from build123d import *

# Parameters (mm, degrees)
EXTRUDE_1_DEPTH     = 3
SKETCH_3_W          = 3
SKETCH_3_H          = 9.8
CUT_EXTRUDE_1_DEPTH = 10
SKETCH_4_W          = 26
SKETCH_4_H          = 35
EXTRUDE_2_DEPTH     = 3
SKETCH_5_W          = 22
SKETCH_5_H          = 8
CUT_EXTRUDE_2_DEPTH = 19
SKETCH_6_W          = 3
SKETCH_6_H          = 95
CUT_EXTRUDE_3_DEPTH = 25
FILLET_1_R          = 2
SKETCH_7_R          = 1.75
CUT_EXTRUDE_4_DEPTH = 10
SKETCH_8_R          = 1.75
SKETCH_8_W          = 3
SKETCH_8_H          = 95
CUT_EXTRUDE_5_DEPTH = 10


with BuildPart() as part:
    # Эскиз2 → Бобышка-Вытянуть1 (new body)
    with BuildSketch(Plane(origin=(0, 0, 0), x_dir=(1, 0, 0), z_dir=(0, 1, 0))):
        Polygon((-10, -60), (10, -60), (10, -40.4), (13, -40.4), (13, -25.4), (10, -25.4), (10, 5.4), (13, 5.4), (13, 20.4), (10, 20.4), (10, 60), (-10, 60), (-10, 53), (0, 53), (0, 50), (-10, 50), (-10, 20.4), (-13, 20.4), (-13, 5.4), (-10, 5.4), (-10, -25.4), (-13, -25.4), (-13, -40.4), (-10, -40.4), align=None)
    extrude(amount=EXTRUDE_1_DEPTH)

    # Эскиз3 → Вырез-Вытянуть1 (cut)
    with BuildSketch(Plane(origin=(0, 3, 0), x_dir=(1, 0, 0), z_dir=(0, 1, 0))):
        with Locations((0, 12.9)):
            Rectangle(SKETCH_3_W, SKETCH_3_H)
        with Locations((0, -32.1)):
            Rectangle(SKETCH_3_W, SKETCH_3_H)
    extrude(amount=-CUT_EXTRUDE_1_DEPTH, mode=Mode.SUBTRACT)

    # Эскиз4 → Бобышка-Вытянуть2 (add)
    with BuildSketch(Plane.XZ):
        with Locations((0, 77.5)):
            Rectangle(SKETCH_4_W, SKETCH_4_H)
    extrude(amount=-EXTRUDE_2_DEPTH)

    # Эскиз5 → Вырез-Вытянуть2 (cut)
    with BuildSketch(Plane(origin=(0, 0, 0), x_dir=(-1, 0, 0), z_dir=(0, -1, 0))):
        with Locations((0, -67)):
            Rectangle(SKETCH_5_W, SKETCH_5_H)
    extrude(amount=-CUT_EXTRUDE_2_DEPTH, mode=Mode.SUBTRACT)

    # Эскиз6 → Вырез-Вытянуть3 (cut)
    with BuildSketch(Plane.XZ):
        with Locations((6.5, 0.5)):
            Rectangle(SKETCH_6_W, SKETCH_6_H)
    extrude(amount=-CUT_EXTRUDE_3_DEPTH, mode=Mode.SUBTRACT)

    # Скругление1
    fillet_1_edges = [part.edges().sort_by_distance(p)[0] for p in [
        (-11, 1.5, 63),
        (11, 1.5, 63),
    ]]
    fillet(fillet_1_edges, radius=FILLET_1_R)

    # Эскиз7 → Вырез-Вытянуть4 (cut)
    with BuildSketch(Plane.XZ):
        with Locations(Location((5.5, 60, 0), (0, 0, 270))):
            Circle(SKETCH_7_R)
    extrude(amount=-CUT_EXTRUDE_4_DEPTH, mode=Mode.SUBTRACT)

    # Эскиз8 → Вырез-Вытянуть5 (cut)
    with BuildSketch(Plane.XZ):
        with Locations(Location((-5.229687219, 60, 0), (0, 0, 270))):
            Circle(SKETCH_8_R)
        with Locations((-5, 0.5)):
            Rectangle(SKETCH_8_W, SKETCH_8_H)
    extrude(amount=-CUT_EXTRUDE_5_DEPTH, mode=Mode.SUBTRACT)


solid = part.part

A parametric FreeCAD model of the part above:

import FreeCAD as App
import Part
import Sketcher
Q = App.Units.Quantity


def edges_at(feature, points):
    """Names of the edges that pass closest to the given points."""
    edges = feature.Shape.Edges
    near = lambda p: min(range(len(edges)), key=lambda i: edges[i].distToShape(Part.Vertex(*p))[0])
    return sorted({f"Edge{near(p) + 1}" for p in points})

doc = App.newDocument("Part")
body = doc.addObject("PartDesign::Body", "Body")

# Sketch on XZ plane
sketch1 = doc.addObject("Sketcher::SketchObject", "Sketch")
body.addObject(sketch1)
sketch1.AttachmentSupport = (doc.XZ_Plane, [""])
sketch1.MapMode = "FlatFace"
sketch1.addGeometry([
    Part.LineSegment(App.Vector(-10, 60, 0), App.Vector(10, 60, 0)),  # 0
    Part.LineSegment(App.Vector(10, 60, 0), App.Vector(10, 40.4, 0)),  # 1
    Part.LineSegment(App.Vector(10, 40.4, 0), App.Vector(13, 40.4, 0)),  # 2
    Part.LineSegment(App.Vector(13, 40.4, 0), App.Vector(13, 25.4, 0)),  # 3
    Part.LineSegment(App.Vector(13, 25.4, 0), App.Vector(10, 25.4, 0)),  # 4
    Part.LineSegment(App.Vector(10, 25.4, 0), App.Vector(10, -5.4, 0)),  # 5
    Part.LineSegment(App.Vector(10, -5.4, 0), App.Vector(13, -5.4, 0)),  # 6
    Part.LineSegment(App.Vector(13, -5.4, 0), App.Vector(13, -20.4, 0)),  # 7
    Part.LineSegment(App.Vector(13, -20.4, 0), App.Vector(10, -20.4, 0)),  # 8
    Part.LineSegment(App.Vector(10, -20.4, 0), App.Vector(10, -60, 0)),  # 9
    Part.LineSegment(App.Vector(10, -60, 0), App.Vector(-10, -60, 0)),  # 10
    Part.LineSegment(App.Vector(-10, -60, 0), App.Vector(-10, -53, 0)),  # 11
    Part.LineSegment(App.Vector(-10, -53, 0), App.Vector(0, -53, 0)),  # 12
    Part.LineSegment(App.Vector(0, -53, 0), App.Vector(0, -50, 0)),  # 13
    Part.LineSegment(App.Vector(0, -50, 0), App.Vector(-10, -50, 0)),  # 14
    Part.LineSegment(App.Vector(-10, -50, 0), App.Vector(-10, -20.4, 0)),  # 15
    Part.LineSegment(App.Vector(-10, -20.4, 0), App.Vector(-13, -20.4, 0)),  # 16
    Part.LineSegment(App.Vector(-13, -20.4, 0), App.Vector(-13, -5.4, 0)),  # 17
    Part.LineSegment(App.Vector(-13, -5.4, 0), App.Vector(-10, -5.4, 0)),  # 18
    Part.LineSegment(App.Vector(-10, -5.4, 0), App.Vector(-10, 25.4, 0)),  # 19
    Part.LineSegment(App.Vector(-10, 25.4, 0), App.Vector(-13, 25.4, 0)),  # 20
    Part.LineSegment(App.Vector(-13, 25.4, 0), App.Vector(-13, 40.4, 0)),  # 21
    Part.LineSegment(App.Vector(-13, 40.4, 0), App.Vector(-10, 40.4, 0)),  # 22
    Part.LineSegment(App.Vector(-10, 40.4, 0), App.Vector(-10, 60, 0)),  # 23
], False)
sketch1.addConstraint([
    Sketcher.Constraint("Coincident", 0, 2, 1, 1),
    Sketcher.Constraint("Coincident", 1, 2, 2, 1),
    Sketcher.Constraint("Coincident", 2, 2, 3, 1),
    Sketcher.Constraint("Coincident", 3, 2, 4, 1),
    Sketcher.Constraint("Coincident", 4, 2, 5, 1),
    Sketcher.Constraint("Coincident", 5, 2, 6, 1),
    Sketcher.Constraint("Coincident", 6, 2, 7, 1),
    Sketcher.Constraint("Coincident", 7, 2, 8, 1),
    Sketcher.Constraint("Coincident", 8, 2, 9, 1),
    Sketcher.Constraint("Coincident", 9, 2, 10, 1),
    Sketcher.Constraint("Coincident", 10, 2, 11, 1),
    Sketcher.Constraint("Coincident", 11, 2, 12, 1),
    Sketcher.Constraint("Coincident", 12, 2, 13, 1),
    Sketcher.Constraint("Coincident", 13, 2, 14, 1),
    Sketcher.Constraint("Coincident", 14, 2, 15, 1),
    Sketcher.Constraint("Coincident", 15, 2, 16, 1),
    Sketcher.Constraint("Coincident", 16, 2, 17, 1),
    Sketcher.Constraint("Coincident", 17, 2, 18, 1),
    Sketcher.Constraint("Coincident", 18, 2, 19, 1),
    Sketcher.Constraint("Coincident", 19, 2, 20, 1),
    Sketcher.Constraint("Coincident", 20, 2, 21, 1),
    Sketcher.Constraint("Coincident", 21, 2, 22, 1),
    Sketcher.Constraint("Coincident", 22, 2, 23, 1),
    Sketcher.Constraint("Coincident", 23, 2, 0, 1),
    Sketcher.Constraint("Horizontal", 0),
    Sketcher.Constraint("Vertical", 1),
    Sketcher.Constraint("Horizontal", 2),
    Sketcher.Constraint("Vertical", 3),
    Sketcher.Constraint("Horizontal", 4),
    Sketcher.Constraint("Vertical", 5),
    Sketcher.Constraint("Horizontal", 6),
    Sketcher.Constraint("Vertical", 7),
    Sketcher.Constraint("Horizontal", 8),
    Sketcher.Constraint("Vertical", 9),
    Sketcher.Constraint("Horizontal", 10),
    Sketcher.Constraint("Vertical", 11),
    Sketcher.Constraint("Horizontal", 12),
    Sketcher.Constraint("Vertical", 13),
    Sketcher.Constraint("Horizontal", 14),
    Sketcher.Constraint("Vertical", 15),
    Sketcher.Constraint("Horizontal", 16),
    Sketcher.Constraint("Vertical", 17),
    Sketcher.Constraint("Horizontal", 18),
    Sketcher.Constraint("Vertical", 19),
    Sketcher.Constraint("Horizontal", 20),
    Sketcher.Constraint("Vertical", 21),
    Sketcher.Constraint("Horizontal", 22),
    Sketcher.Constraint("Vertical", 23),
    Sketcher.Constraint("Symmetric", 0, 2, 10, 2, -1, 1),
    Sketcher.Constraint("Symmetric", 8, 2, 15, 2, -2),
    Sketcher.Constraint("Symmetric", 6, 2, 17, 2, -2),
    Sketcher.Constraint("Symmetric", 4, 2, 19, 2, -2),
    Sketcher.Constraint("Symmetric", 2, 2, 21, 2, -2),
    Sketcher.Constraint("PointOnObject", 12, 2, -2),
    Sketcher.Constraint("Vertical", 1, 2, 4, 2),
    Sketcher.Constraint("Vertical", 3, 2, 6, 2),
    Sketcher.Constraint("Vertical", 5, 2, 8, 2),
    Sketcher.Constraint("Vertical", 19, 2, 22, 2),
    Sketcher.Constraint("Equal", 3, 7),
    Sketcher.Constraint("Equal", 22, 13),
    Sketcher.Constraint("DistanceX", 0, 1, 0, 2, Q("20 mm")),
    Sketcher.Constraint("DistanceX", 2, 1, 2, 2, Q("3 mm")),
    Sketcher.Constraint("DistanceY", 3, 2, 3, 1, Q("15 mm")),
    Sketcher.Constraint("DistanceY", 11, 1, 11, 2, Q("7 mm")),
    Sketcher.Constraint("DistanceY", 1, 2, 1, 1, Q("19.6 mm")),
    Sketcher.Constraint("DistanceY", 5, 2, 5, 1, Q("30.8 mm")),
    Sketcher.Constraint("DistanceY", 9, 2, 9, 1, Q("39.6 mm")),
])
pad1 = doc.addObject("PartDesign::Pad", "Pad")
body.addObject(pad1)
pad1.Profile = sketch1
pad1.Length = 3
pad1.Reversed = True

# Sketch on XZ plane
sketch2 = doc.addObject("Sketcher::SketchObject", "Sketch001")
body.addObject(sketch2)
sketch2.AttachmentSupport = (doc.XZ_Plane, [""])
sketch2.MapMode = "FlatFace"
sketch2.AttachmentOffset = App.Placement(App.Vector(0, 0, -3), App.Rotation())
sketch2.addGeometry([
    Part.LineSegment(App.Vector(-1.5, -17.8, 0), App.Vector(-1.5, -8, 0)),  # 0
    Part.LineSegment(App.Vector(-1.5, -8, 0), App.Vector(1.5, -8, 0)),  # 1
    Part.LineSegment(App.Vector(1.5, -8, 0), App.Vector(1.5, -17.8, 0)),  # 2
    Part.LineSegment(App.Vector(1.5, -17.8, 0), App.Vector(-1.5, -17.8, 0)),  # 3
    Part.LineSegment(App.Vector(-1.5, 27.2, 0), App.Vector(-1.5, 37, 0)),  # 4
    Part.LineSegment(App.Vector(-1.5, 37, 0), App.Vector(1.5, 37, 0)),  # 5
    Part.LineSegment(App.Vector(1.5, 37, 0), App.Vector(1.5, 27.2, 0)),  # 6
    Part.LineSegment(App.Vector(1.5, 27.2, 0), App.Vector(-1.5, 27.2, 0)),  # 7
], False)
sketch2.addConstraint([
    Sketcher.Constraint("Coincident", 0, 2, 1, 1),
    Sketcher.Constraint("Coincident", 1, 2, 2, 1),
    Sketcher.Constraint("Coincident", 2, 2, 3, 1),
    Sketcher.Constraint("Coincident", 3, 2, 0, 1),
    Sketcher.Constraint("Coincident", 4, 2, 5, 1),
    Sketcher.Constraint("Coincident", 5, 2, 6, 1),
    Sketcher.Constraint("Coincident", 6, 2, 7, 1),
    Sketcher.Constraint("Coincident", 7, 2, 4, 1),
    Sketcher.Constraint("Vertical", 0),
    Sketcher.Constraint("Horizontal", 1),
    Sketcher.Constraint("Vertical", 2),
    Sketcher.Constraint("Horizontal", 3),
    Sketcher.Constraint("Vertical", 4),
    Sketcher.Constraint("Horizontal", 5),
    Sketcher.Constraint("Vertical", 6),
    Sketcher.Constraint("Horizontal", 7),
    Sketcher.Constraint("Vertical", 3, 2, 4, 2),
    Sketcher.Constraint("Vertical", 2, 2, 5, 2),
    Sketcher.Constraint("Equal", 2, 4),
    Sketcher.Constraint("DistanceX", 1, 1, 1, 2, Q("3 mm")),
    Sketcher.Constraint("DistanceY", 0, 1, 0, 2, Q("9.8 mm")),
    Sketcher.Constraint("DistanceY", 0, 2, -1, 1, Q("8 mm")),
    Sketcher.Constraint("DistanceY", -1, 1, 4, 2, Q("37 mm")),
    Sketcher.Constraint("DistanceX", 0, 2, -1, 1, Q("1.5 mm")),
])
pocket1 = doc.addObject("PartDesign::Pocket", "Pocket")
body.addObject(pocket1)
pocket1.Profile = sketch2
pocket1.Length = 10
pocket1.Reversed = True

# Sketch on XZ plane
sketch3 = doc.addObject("Sketcher::SketchObject", "Sketch002")
body.addObject(sketch3)
sketch3.AttachmentSupport = (doc.XZ_Plane, [""])
sketch3.MapMode = "FlatFace"
sketch3.addGeometry([
    Part.LineSegment(App.Vector(-13, 95, 0), App.Vector(-13, 60, 0)),
    Part.LineSegment(App.Vector(-13, 60, 0), App.Vector(13, 60, 0)),
    Part.LineSegment(App.Vector(13, 60, 0), App.Vector(13, 95, 0)),
    Part.LineSegment(App.Vector(13, 95, 0), App.Vector(-13, 95, 0)),
], False)
sketch3.addConstraint([
    Sketcher.Constraint("Coincident", 0, 2, 1, 1),
    Sketcher.Constraint("Coincident", 1, 2, 2, 1),
    Sketcher.Constraint("Coincident", 2, 2, 3, 1),
    Sketcher.Constraint("Coincident", 3, 2, 0, 1),
    Sketcher.Constraint("Vertical", 0),
    Sketcher.Constraint("Horizontal", 1),
    Sketcher.Constraint("Vertical", 2),
    Sketcher.Constraint("Horizontal", 3),
    Sketcher.Constraint("DistanceX", 1, 1, 1, 2, Q("26 mm")),
    Sketcher.Constraint("DistanceY", 0, 2, 0, 1, Q("35 mm")),
    Sketcher.Constraint("DistanceX", 0, 2, -1, 1, Q("13 mm")),
    Sketcher.Constraint("DistanceY", -1, 1, 0, 2, Q("60 mm")),
])
pad2 = doc.addObject("PartDesign::Pad", "Pad001")
body.addObject(pad2)
pad2.Profile = sketch3
pad2.Length = 3
pad2.Reversed = True

# Sketch on XZ plane
sketch4 = doc.addObject("Sketcher::SketchObject", "Sketch003")
body.addObject(sketch4)
sketch4.AttachmentSupport = (doc.XZ_Plane, [""])
sketch4.MapMode = "FlatFace"
sketch4.addGeometry([
    Part.LineSegment(App.Vector(11, 63, 0), App.Vector(11, 71, 0)),
    Part.LineSegment(App.Vector(11, 71, 0), App.Vector(-11, 71, 0)),
    Part.LineSegment(App.Vector(-11, 71, 0), App.Vector(-11, 63, 0)),
    Part.LineSegment(App.Vector(-11, 63, 0), App.Vector(11, 63, 0)),
], False)
sketch4.addConstraint([
    Sketcher.Constraint("Coincident", 0, 2, 1, 1),
    Sketcher.Constraint("Coincident", 1, 2, 2, 1),
    Sketcher.Constraint("Coincident", 2, 2, 3, 1),
    Sketcher.Constraint("Coincident", 3, 2, 0, 1),
    Sketcher.Constraint("Vertical", 0),
    Sketcher.Constraint("Horizontal", 1),
    Sketcher.Constraint("Vertical", 2),
    Sketcher.Constraint("Horizontal", 3),
    Sketcher.Constraint("DistanceX", 1, 2, 1, 1, Q("22 mm")),
    Sketcher.Constraint("DistanceY", 0, 1, 0, 2, Q("8 mm")),
    Sketcher.Constraint("DistanceX", -1, 1, 0, 2, Q("11 mm")),
    Sketcher.Constraint("DistanceY", -1, 1, 0, 2, Q("71 mm")),
])
pocket2 = doc.addObject("PartDesign::Pocket", "Pocket001")
body.addObject(pocket2)
pocket2.Profile = sketch4
pocket2.Length = 19

# Sketch on XZ plane
sketch5 = doc.addObject("Sketcher::SketchObject", "Sketch004")
body.addObject(sketch5)
sketch5.AttachmentSupport = (doc.XZ_Plane, [""])
sketch5.MapMode = "FlatFace"
sketch5.addGeometry([
    Part.LineSegment(App.Vector(5, 48, 0), App.Vector(5, -47, 0)),
    Part.LineSegment(App.Vector(5, -47, 0), App.Vector(8, -47, 0)),
    Part.LineSegment(App.Vector(8, -47, 0), App.Vector(8, 48, 0)),
    Part.LineSegment(App.Vector(8, 48, 0), App.Vector(5, 48, 0)),
], False)
sketch5.addConstraint([
    Sketcher.Constraint("Coincident", 0, 2, 1, 1),
    Sketcher.Constraint("Coincident", 1, 2, 2, 1),
    Sketcher.Constraint("Coincident", 2, 2, 3, 1),
    Sketcher.Constraint("Coincident", 3, 2, 0, 1),
    Sketcher.Constraint("Vertical", 0),
    Sketcher.Constraint("Horizontal", 1),
    Sketcher.Constraint("Vertical", 2),
    Sketcher.Constraint("Horizontal", 3),
    Sketcher.Constraint("DistanceX", 1, 1, 1, 2, Q("3 mm")),
    Sketcher.Constraint("DistanceY", 0, 2, 0, 1, Q("95 mm")),
    Sketcher.Constraint("DistanceX", -1, 1, 0, 2, Q("5 mm")),
    Sketcher.Constraint("DistanceY", 0, 2, -1, 1, Q("47 mm")),
])
pocket3 = doc.addObject("PartDesign::Pocket", "Pocket002")
body.addObject(pocket3)
pocket3.Profile = sketch5
pocket3.Length = 25
doc.recompute()

fillet = doc.addObject("PartDesign::Fillet", "Fillet")
body.addObject(fillet)
fillet.Base = (pocket3, edges_at(pocket3, [(-11, 1.5, 63), (11, 1.5, 63)]))
fillet.Radius = 2

# Sketch on XZ plane
sketch6 = doc.addObject("Sketcher::SketchObject", "Sketch005")
body.addObject(sketch6)
sketch6.AttachmentSupport = (doc.XZ_Plane, [""])
sketch6.MapMode = "FlatFace"
sketch6.addGeometry(Part.Circle(App.Vector(5.5, 60, 0), App.Vector(0, 0, 1), 1.8), False)
sketch6.addConstraint([
    Sketcher.Constraint("Diameter", 0, Q("3.5 mm")),
    Sketcher.Constraint("DistanceY", -1, 1, 0, 3, Q("60 mm")),
    Sketcher.Constraint("DistanceX", -1, 1, 0, 3, Q("5.5 mm")),
])
pocket4 = doc.addObject("PartDesign::Pocket", "Pocket003")
body.addObject(pocket4)
pocket4.Profile = sketch6
pocket4.Length = 10

# Sketch on XZ plane
sketch7 = doc.addObject("Sketcher::SketchObject", "Sketch006")
body.addObject(sketch7)
sketch7.AttachmentSupport = (doc.XZ_Plane, [""])
sketch7.MapMode = "FlatFace"
sketch7.addGeometry([
    Part.Circle(App.Vector(-5.2, 60, 0), App.Vector(0, 0, 1), 1.8),  # 0
    Part.LineSegment(App.Vector(-6.5, 48, 0), App.Vector(-6.5, -47, 0)),  # 1
    Part.LineSegment(App.Vector(-6.5, -47, 0), App.Vector(-3.5, -47, 0)),  # 2
    Part.LineSegment(App.Vector(-3.5, -47, 0), App.Vector(-3.5, 48, 0)),  # 3
    Part.LineSegment(App.Vector(-3.5, 48, 0), App.Vector(-6.5, 48, 0)),  # 4
], False)
sketch7.addConstraint([
    Sketcher.Constraint("Coincident", 1, 2, 2, 1),
    Sketcher.Constraint("Coincident", 2, 2, 3, 1),
    Sketcher.Constraint("Coincident", 3, 2, 4, 1),
    Sketcher.Constraint("Coincident", 4, 2, 1, 1),
    Sketcher.Constraint("Vertical", 1),
    Sketcher.Constraint("Horizontal", 2),
    Sketcher.Constraint("Vertical", 3),
    Sketcher.Constraint("Horizontal", 4),
    Sketcher.Constraint("Diameter", 0, Q("3.5 mm")),
    Sketcher.Constraint("DistanceX", 2, 1, 2, 2, Q("3 mm")),
    Sketcher.Constraint("DistanceY", 1, 2, 1, 1, Q("95 mm")),
    Sketcher.Constraint("DistanceY", -1, 1, 0, 3, Q("60 mm")),
    Sketcher.Constraint("DistanceY", 1, 2, -1, 1, Q("47 mm")),
    Sketcher.Constraint("DistanceX", 1, 2, -1, 1, Q("6.5 mm")),
    Sketcher.Constraint("DistanceX", 0, 3, -1, 1, Q("5.229687 mm")),
])
pocket5 = doc.addObject("PartDesign::Pocket", "Pocket004")
body.addObject(pocket5)
pocket5.Profile = sketch7
pocket5.Length = 10

doc.recompute()
